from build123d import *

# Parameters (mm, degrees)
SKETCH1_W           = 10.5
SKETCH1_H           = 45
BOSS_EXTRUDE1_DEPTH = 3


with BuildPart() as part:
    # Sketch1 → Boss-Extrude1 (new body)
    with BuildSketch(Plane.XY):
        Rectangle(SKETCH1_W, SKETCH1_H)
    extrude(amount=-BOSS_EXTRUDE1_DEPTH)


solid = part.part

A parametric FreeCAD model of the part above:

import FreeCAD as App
import Part
import Sketcher
from FreeCAD import Vector
Q = App.Units.Quantity


def add_polygon(sketch, points):
    """Adds a closed chain of lines whose ends are joined by coincident constraints."""
    first, n = sketch.GeometryCount, len(points)
    for a, b in zip(points, points[1:] + points[:1]):
        sketch.addGeometry(Part.LineSegment(App.Vector(*a, 0), App.Vector(*b, 0)), False)
    for i in range(n):
        sketch.addConstraint(Sketcher.Constraint("Coincident", first + i, 2, first + (i + 1) % n, 1))

doc = App.newDocument("Part")
body = doc.addObject("PartDesign::Body", "Body")

# Sketch on XY plane
sketch1 = doc.addObject("Sketcher::SketchObject", "Sketch")
body.addObject(sketch1)
sketch1.AttachmentSupport = (doc.XY_Plane, [""])
sketch1.MapMode = "FlatFace"
add_polygon(sketch1, [(-5, 22), (-5, -22), (5, -22), (5, 22)])  # lines 0-3
sketch1.addConstraint([
    Sketcher.Constraint("Vertical", 0),
    Sketcher.Constraint("Horizontal", 1),
    Sketcher.Constraint("Vertical", 2),
    Sketcher.Constraint("Horizontal", 3),
    Sketcher.Constraint("Symmetric", 0, 2, 2, 2, -1, 1),
    Sketcher.Constraint("DistanceY", 0, 2, 0, 1, Q("45 mm")),
    Sketcher.Constraint("DistanceX", 1, 1, 1, 2, Q("10.5 mm")),
])
pad1 = doc.addObject("PartDesign::Pad", "Pad")
body.addObject(pad1)
pad1.Profile = sketch1
pad1.Length = 3
pad1.Reversed = True

doc.recompute()
